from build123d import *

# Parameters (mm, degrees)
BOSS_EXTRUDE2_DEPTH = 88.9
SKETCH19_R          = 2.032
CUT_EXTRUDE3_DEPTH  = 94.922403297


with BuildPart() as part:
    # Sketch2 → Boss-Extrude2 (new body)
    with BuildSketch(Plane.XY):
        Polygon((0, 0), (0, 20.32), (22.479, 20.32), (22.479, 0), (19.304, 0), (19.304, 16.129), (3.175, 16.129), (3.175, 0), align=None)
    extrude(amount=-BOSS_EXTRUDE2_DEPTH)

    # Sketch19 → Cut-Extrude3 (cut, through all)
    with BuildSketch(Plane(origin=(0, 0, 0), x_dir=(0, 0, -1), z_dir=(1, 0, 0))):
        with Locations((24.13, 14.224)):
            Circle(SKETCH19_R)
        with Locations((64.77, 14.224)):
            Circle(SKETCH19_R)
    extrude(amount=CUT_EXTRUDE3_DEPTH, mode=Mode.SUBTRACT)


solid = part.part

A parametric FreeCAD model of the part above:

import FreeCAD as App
import Part
import Sketcher
Q = App.Units.Quantity

doc = App.newDocument("Part")
body = doc.addObject("PartDesign::Body", "Body")

# Sketch on XY plane
sketch1 = body.newObject("Sketcher::SketchObject", "Sketch")
sketch1.AttachmentSupport = (doc.getObject("XY_Plane"), [""])
sketch1.MapMode = "FlatFace"
sketch1.addGeometry([
    Part.LineSegment(App.Vector(0, 20.32, 0), App.Vector(0, 0, 0)),  # 0
    Part.LineSegment(App.Vector(0, 0, 0), App.Vector(3.175, 0, 0)),  # 1
    Part.LineSegment(App.Vector(3.175, 0, 0), App.Vector(3.175, 16.129, 0)),  # 2
    Part.LineSegment(App.Vector(3.175, 16.129, 0), App.Vector(19.304, 16.129, 0)),  # 3
    Part.LineSegment(App.Vector(19.304, 16.129, 0), App.Vector(19.304, 0, 0)),  # 4
    Part.LineSegment(App.Vector(19.304, 0, 0), App.Vector(22.479, 0, 0)),  # 5
    Part.LineSegment(App.Vector(22.479, 0, 0), App.Vector(22.479, 20.32, 0)),  # 6
    Part.LineSegment(App.Vector(22.479, 20.32, 0), App.Vector(0, 20.32, 0)),  # 7
], False)
sketch1.addConstraint([
    Sketcher.Constraint("Coincident", 0, 2, 1, 1),
    Sketcher.Constraint("Coincident", 1, 2, 2, 1),
    Sketcher.Constraint("Coincident", 2, 2, 3, 1),
    Sketcher.Constraint("Coincident", 3, 2, 4, 1),
    Sketcher.Constraint("Coincident", 4, 2, 5, 1),
    Sketcher.Constraint("Coincident", 5, 2, 6, 1),
    Sketcher.Constraint("Coincident", 6, 2, 7, 1),
    Sketcher.Constraint("Coincident", 7, 2, 0, 1),
    Sketcher.Constraint("Vertical", 0),
    Sketcher.Constraint("Horizontal", 1),
    Sketcher.Constraint("Vertical", 2),
    Sketcher.Constraint("Horizontal", 3),
    Sketcher.Constraint("Vertical", 4),
    Sketcher.Constraint("Horizontal", 5),
    Sketcher.Constraint("Vertical", 6),
    Sketcher.Constraint("Horizontal", 7),
    Sketcher.Constraint("Coincident", 0, 2, -1, 1),
    Sketcher.Constraint("PointOnObject", 4, 2, -1),
    Sketcher.Constraint("Equal", 1, 5),
    Sketcher.Constraint("Equal", 3, 2),
    Sketcher.Constraint("DistanceY", 0, 2, 0, 1, Q("0.8 in")),
    Sketcher.Constraint("DistanceX", 1, 1, 1, 2, Q("0.125 in")),
    Sketcher.Constraint("DistanceX", 3, 1, 3, 2, Q("0.635 in")),
])
pad1 = body.newObject("PartDesign::Pad", "Pad")
pad1.Profile = sketch1
pad1.Length = Q("3.5 in")
pad1.Reversed = True

# Sketch on YZ plane
sketch2 = body.newObject("Sketcher::SketchObject", "Sketch001")
sketch2.AttachmentSupport = (doc.getObject("YZ_Plane"), [""])
sketch2.MapMode = "FlatFace"
sketch2.addGeometry([
    Part.Circle(App.Vector(14.224, -24.13, 0), App.Vector(0, 0, 1), 2.032),
    Part.Circle(App.Vector(14.224, -64.77, 0), App.Vector(0, 0, 1), 2.032),
], False)
sketch2.addConstraint([
    Sketcher.Constraint("Equal", 0, 1),
    Sketcher.Constraint("Vertical", 0, 3, 1, 3),
    Sketcher.Constraint("Diameter", 0, Q("0.16 in")),
    Sketcher.Constraint("DistanceY", 1, 3, 0, 3, Q("1.6 in")),
    Sketcher.Constraint("DistanceX", -1, 1, 0, 3, Q("0.56 in")),
    Sketcher.Constraint("DistanceY", 0, 3, -1, 1, Q("0.95 in")),
])
pocket1 = body.newObject("PartDesign::Pocket", "Pocket")
pocket1.Profile = sketch2
pocket1.Type = "ThroughAll"
pocket1.Reversed = True

doc.recompute()
